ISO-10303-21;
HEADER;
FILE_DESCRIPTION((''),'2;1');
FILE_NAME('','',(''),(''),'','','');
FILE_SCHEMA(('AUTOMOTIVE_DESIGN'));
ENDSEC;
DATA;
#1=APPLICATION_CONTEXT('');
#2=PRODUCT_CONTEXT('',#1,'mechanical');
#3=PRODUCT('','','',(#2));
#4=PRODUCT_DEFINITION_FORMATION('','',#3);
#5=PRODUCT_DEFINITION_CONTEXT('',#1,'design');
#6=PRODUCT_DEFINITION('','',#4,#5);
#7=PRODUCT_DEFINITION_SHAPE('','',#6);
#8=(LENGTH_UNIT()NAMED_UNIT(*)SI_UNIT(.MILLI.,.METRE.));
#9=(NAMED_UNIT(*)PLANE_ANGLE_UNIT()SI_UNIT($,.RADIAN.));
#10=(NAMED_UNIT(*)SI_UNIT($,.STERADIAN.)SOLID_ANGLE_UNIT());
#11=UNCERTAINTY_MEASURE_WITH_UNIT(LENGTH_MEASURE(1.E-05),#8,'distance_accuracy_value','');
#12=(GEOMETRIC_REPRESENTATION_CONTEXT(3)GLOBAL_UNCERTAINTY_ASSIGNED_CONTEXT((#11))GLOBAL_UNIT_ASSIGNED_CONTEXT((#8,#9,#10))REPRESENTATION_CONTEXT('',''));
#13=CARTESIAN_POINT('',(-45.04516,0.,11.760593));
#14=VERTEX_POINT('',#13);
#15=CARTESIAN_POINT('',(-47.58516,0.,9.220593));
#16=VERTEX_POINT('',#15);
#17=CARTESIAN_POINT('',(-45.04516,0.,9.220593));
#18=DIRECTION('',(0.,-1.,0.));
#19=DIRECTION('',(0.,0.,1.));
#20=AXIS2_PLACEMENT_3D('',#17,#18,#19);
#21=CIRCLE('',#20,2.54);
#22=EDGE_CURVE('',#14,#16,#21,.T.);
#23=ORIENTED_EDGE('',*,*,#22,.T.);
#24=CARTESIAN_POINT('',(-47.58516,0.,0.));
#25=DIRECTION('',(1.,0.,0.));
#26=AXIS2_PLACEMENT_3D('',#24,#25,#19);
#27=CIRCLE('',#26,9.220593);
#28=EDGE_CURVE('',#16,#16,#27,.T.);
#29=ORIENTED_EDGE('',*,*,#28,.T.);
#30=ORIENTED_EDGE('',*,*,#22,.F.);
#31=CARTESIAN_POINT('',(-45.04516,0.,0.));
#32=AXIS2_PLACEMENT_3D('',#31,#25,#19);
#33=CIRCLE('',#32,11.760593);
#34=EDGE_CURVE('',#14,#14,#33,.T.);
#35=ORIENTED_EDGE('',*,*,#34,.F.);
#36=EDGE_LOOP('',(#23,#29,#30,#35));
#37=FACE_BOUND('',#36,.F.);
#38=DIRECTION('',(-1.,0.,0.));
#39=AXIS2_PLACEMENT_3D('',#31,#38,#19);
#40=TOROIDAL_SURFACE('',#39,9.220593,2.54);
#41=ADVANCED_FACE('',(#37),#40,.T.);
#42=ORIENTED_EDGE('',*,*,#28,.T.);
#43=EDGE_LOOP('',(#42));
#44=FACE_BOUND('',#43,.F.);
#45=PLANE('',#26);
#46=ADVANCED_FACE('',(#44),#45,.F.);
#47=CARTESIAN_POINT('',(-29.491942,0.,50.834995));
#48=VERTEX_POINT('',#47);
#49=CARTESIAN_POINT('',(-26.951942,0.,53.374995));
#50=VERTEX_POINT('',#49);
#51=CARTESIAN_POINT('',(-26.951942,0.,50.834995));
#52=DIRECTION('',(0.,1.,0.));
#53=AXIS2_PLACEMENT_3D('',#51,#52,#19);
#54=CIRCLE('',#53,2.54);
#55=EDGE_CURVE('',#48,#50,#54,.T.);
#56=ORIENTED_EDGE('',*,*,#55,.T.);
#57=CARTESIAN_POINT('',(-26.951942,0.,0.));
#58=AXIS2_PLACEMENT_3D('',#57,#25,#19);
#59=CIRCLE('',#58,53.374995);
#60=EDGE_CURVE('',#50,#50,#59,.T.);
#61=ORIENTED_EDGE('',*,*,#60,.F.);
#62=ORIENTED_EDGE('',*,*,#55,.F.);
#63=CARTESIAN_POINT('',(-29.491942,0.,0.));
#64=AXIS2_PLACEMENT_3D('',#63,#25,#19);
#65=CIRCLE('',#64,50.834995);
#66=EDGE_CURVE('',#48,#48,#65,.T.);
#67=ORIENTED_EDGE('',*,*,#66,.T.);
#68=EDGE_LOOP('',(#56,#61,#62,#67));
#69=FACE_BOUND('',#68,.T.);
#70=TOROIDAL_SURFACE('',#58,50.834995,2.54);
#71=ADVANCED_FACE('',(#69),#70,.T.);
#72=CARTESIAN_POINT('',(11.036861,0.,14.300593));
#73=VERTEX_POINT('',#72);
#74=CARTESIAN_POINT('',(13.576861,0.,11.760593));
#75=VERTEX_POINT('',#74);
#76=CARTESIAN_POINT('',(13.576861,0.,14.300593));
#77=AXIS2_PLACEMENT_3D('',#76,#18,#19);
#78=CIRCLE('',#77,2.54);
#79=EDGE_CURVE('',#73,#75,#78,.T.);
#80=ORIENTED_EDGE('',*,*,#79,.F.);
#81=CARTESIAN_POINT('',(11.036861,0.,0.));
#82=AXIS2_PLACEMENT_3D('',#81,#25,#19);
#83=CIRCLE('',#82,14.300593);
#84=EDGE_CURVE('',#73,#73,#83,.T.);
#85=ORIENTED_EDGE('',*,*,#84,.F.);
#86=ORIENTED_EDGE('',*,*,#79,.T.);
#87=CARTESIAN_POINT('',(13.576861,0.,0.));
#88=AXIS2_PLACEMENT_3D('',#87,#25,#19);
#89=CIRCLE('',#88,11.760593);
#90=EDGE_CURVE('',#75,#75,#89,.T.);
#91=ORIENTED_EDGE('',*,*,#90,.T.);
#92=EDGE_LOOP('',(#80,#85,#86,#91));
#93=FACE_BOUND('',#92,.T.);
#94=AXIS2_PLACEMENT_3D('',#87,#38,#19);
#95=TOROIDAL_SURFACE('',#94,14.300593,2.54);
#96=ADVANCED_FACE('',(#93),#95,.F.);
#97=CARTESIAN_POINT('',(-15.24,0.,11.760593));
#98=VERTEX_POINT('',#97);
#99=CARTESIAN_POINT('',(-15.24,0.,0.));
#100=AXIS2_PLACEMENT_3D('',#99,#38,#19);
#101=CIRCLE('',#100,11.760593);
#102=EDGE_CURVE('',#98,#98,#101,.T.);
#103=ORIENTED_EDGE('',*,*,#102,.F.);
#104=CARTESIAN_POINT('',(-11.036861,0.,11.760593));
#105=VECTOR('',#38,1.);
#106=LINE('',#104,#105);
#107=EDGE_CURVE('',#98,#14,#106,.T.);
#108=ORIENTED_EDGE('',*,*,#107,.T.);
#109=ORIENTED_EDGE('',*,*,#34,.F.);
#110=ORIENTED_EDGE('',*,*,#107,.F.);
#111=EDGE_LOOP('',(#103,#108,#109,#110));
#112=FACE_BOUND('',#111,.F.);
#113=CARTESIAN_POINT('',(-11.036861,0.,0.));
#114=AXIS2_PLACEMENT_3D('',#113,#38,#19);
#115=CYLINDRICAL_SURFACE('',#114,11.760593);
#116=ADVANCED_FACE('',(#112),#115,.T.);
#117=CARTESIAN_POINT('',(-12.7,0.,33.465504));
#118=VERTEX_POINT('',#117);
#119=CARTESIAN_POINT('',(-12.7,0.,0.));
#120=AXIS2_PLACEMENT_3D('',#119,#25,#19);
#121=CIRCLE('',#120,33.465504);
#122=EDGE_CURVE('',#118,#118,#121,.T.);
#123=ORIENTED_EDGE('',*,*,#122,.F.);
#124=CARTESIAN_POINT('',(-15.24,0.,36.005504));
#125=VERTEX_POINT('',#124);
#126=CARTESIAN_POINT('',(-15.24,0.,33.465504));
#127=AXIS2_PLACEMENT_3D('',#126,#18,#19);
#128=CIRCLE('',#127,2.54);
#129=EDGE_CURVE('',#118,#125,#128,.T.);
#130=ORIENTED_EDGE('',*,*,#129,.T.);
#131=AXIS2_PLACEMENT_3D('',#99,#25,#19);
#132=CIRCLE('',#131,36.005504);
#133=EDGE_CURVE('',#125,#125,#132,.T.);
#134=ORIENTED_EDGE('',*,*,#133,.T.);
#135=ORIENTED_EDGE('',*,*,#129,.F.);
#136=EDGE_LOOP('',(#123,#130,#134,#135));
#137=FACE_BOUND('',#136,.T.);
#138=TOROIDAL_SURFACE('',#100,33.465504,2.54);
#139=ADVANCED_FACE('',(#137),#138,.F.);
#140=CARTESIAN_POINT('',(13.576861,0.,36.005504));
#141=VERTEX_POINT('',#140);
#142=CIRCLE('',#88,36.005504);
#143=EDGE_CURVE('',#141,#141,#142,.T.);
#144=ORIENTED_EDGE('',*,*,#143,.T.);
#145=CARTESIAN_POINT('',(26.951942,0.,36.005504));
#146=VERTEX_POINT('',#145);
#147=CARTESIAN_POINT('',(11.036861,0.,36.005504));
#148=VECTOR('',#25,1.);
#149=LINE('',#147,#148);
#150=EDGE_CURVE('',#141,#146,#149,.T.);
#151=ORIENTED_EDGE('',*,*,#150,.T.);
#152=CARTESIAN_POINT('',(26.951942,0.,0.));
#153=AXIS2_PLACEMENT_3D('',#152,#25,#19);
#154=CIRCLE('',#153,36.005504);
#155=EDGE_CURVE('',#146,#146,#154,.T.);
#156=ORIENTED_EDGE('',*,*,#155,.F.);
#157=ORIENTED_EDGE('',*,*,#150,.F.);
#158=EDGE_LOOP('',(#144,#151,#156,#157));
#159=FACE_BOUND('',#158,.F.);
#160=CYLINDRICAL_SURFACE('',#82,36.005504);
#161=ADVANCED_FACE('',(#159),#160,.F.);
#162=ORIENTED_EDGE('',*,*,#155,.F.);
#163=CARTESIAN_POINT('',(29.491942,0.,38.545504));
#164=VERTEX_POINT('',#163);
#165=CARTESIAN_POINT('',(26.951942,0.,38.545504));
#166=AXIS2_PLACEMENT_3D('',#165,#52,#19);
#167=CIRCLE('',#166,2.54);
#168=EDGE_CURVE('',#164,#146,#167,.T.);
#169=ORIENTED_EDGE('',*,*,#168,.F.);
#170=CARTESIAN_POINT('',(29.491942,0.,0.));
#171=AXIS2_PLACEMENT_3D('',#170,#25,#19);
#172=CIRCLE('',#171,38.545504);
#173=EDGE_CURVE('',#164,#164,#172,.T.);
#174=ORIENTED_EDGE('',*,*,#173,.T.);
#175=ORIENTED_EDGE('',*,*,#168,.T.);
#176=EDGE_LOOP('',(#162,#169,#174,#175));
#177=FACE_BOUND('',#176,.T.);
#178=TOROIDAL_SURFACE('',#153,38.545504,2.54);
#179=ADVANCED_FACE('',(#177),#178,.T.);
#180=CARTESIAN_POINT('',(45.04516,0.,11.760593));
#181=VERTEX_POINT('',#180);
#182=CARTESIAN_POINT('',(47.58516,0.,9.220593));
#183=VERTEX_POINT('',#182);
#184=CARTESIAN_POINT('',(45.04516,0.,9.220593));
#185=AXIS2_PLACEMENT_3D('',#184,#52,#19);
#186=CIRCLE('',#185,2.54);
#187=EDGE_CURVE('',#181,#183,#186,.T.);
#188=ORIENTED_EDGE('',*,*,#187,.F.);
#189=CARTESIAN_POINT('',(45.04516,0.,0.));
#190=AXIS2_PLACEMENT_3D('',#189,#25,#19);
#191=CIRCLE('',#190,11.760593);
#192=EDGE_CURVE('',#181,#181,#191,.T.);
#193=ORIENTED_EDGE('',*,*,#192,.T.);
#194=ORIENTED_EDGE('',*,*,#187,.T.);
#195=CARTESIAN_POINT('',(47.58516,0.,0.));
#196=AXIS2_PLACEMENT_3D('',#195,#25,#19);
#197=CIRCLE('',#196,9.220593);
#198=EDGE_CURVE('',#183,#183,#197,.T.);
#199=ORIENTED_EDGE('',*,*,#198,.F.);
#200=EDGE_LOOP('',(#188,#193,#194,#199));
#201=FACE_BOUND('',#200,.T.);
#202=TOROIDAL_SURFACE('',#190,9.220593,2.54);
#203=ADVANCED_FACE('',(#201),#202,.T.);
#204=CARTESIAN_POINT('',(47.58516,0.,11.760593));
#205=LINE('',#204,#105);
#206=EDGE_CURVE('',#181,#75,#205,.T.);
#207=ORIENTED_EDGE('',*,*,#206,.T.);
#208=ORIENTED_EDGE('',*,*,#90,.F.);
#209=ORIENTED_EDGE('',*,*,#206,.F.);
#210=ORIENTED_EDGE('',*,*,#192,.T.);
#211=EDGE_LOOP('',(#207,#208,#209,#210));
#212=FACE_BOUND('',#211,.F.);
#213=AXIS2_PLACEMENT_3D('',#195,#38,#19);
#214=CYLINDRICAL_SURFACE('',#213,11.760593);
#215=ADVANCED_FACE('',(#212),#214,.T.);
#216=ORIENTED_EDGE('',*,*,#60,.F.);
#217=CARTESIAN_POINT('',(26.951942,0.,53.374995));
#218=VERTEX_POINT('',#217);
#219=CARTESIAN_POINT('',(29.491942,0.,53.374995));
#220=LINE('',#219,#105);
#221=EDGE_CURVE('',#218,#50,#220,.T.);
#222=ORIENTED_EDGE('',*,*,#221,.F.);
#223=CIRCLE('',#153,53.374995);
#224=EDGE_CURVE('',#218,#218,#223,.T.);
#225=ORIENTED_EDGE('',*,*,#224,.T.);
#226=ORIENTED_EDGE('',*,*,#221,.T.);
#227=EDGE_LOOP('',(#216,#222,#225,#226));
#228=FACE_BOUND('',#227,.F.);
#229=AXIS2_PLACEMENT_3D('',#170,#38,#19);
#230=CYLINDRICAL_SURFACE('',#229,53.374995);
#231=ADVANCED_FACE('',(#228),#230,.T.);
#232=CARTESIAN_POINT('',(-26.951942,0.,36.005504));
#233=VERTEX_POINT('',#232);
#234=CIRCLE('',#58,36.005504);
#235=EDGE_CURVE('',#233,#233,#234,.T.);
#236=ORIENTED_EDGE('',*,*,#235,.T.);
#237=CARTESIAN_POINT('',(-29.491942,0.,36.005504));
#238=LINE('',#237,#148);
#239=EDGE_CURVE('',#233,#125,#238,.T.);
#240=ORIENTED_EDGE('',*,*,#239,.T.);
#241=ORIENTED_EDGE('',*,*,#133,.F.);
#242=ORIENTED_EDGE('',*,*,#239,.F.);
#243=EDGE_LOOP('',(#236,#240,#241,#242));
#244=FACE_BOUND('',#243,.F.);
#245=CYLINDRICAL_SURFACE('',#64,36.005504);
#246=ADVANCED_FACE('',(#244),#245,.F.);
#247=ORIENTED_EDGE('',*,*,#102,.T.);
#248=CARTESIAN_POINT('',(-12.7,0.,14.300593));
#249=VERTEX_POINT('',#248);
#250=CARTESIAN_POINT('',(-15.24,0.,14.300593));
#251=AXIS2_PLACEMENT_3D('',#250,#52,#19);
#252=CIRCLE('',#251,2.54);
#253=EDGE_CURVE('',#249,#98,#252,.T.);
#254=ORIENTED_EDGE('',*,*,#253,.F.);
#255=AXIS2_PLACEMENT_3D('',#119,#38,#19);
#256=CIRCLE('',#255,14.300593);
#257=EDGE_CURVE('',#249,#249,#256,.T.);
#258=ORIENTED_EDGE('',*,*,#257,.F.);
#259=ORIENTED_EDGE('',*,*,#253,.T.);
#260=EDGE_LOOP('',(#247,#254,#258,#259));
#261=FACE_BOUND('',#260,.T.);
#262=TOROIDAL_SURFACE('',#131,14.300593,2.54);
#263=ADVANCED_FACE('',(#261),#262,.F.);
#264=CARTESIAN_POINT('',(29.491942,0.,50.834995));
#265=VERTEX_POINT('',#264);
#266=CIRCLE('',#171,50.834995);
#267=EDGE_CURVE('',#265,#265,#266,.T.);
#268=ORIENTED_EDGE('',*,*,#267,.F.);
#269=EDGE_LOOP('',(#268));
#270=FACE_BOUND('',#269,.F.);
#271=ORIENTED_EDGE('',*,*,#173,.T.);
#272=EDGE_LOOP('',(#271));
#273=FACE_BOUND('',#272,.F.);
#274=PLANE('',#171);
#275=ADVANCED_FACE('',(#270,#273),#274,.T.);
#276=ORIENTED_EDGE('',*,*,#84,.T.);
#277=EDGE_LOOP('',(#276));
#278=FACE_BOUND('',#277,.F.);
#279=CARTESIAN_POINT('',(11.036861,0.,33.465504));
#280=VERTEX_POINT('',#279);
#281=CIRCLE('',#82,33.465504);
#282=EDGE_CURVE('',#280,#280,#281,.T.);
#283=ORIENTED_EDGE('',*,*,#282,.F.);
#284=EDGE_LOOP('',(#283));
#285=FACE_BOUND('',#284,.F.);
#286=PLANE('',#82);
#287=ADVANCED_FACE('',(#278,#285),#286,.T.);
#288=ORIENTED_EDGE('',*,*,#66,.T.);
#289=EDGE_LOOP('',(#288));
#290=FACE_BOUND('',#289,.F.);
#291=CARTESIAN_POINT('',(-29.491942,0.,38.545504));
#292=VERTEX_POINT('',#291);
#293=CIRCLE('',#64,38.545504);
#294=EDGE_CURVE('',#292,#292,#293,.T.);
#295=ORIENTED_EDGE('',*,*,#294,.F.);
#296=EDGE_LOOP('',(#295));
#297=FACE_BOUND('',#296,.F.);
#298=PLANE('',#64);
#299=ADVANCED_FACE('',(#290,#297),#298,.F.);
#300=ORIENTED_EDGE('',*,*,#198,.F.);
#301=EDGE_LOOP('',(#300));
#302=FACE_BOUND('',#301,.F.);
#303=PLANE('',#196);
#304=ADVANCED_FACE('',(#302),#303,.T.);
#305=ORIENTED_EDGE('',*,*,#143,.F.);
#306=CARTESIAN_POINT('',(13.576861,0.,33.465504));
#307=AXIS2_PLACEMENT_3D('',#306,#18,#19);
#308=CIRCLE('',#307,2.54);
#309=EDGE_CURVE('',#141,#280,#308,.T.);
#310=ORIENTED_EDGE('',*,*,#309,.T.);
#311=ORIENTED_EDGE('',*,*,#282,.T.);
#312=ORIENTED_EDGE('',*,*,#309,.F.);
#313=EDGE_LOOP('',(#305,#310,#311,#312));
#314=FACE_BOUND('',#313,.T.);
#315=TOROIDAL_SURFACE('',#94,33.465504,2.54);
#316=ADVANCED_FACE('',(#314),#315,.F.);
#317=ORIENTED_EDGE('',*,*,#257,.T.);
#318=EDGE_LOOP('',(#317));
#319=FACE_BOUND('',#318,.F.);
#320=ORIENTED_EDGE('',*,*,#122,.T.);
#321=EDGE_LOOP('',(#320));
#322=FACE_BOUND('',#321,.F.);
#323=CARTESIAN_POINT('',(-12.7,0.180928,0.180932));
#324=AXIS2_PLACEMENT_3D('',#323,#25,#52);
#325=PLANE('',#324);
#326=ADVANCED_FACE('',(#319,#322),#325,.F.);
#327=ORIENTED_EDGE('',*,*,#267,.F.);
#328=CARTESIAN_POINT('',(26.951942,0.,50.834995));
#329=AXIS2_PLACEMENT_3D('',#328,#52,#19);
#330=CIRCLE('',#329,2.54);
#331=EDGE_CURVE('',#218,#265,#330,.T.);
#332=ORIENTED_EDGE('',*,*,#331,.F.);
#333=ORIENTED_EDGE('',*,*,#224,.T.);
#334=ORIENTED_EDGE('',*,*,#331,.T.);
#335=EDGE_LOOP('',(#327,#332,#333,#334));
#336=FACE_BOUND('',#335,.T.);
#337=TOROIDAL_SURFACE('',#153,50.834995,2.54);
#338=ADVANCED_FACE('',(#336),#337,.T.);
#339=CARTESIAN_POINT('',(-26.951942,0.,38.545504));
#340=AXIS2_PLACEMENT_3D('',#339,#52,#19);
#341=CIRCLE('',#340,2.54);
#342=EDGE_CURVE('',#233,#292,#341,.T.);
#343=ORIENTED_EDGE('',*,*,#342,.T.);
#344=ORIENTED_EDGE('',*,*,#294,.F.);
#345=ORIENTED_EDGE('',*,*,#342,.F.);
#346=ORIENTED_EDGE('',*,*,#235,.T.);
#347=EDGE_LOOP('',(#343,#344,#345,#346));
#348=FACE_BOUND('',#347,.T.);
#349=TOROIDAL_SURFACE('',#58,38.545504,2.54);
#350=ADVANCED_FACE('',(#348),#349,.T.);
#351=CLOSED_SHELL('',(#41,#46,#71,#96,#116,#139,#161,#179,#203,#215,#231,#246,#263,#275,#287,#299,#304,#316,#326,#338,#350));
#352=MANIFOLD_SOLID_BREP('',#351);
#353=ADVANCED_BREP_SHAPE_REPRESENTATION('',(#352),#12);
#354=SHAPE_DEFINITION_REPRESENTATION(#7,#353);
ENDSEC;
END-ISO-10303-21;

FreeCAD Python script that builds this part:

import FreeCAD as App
import Part
import Sketcher
from FreeCAD import Vector
Q = App.Units.Quantity


def edges_at(feature, points):
    """Names of the edges that pass closest to the given points."""
    edges = feature.Shape.Edges
    near = lambda p: min(range(len(edges)), key=lambda i: edges[i].distToShape(Part.Vertex(*p))[0])
    return sorted({f"Edge{near(p) + 1}" for p in points})


def add_polygon(sketch, points):
    """Adds a closed chain of lines whose ends are joined by coincident constraints."""
    first, n = sketch.GeometryCount, len(points)
    for a, b in zip(points, points[1:] + points[:1]):
        sketch.addGeometry(Part.LineSegment(App.Vector(*a, 0), App.Vector(*b, 0)), False)
    for i in range(n):
        sketch.addConstraint(Sketcher.Constraint("Coincident", first + i, 2, first + (i + 1) % n, 1))

doc = App.newDocument("Part")
body = doc.addObject("PartDesign::Body", "Body")

# Sketch on XZ plane
sketch1 = body.newObject("Sketcher::SketchObject", "Sketch")
sketch1.AttachmentSupport = (doc.getObject("XZ_Plane"), [""])
sketch1.MapMode = "FlatFace"
add_polygon(sketch1, [(29, 53), (-29, 53), (-29, 36), (-11, 36), (-11, 12), (-48, 12), (-48, 0), (48, 0), (48, 12), (11, 12), (11, 36), (29, 36)])  # lines 0-11
sketch1.addConstraint([
    Sketcher.Constraint("Horizontal", 0),
    Sketcher.Constraint("Vertical", 1),
    Sketcher.Constraint("Horizontal", 2),
    Sketcher.Constraint("Vertical", 3),
    Sketcher.Constraint("Horizontal", 4),
    Sketcher.Constraint("Vertical", 5),
    Sketcher.Constraint("Horizontal", 6),
    Sketcher.Constraint("Vertical", 7),
    Sketcher.Constraint("Horizontal", 8),
    Sketcher.Constraint("Vertical", 9),
    Sketcher.Constraint("Horizontal", 10),
    Sketcher.Constraint("Vertical", 11),
    Sketcher.Constraint("Symmetric", 5, 2, 6, 2, -1, 1),
    Sketcher.Constraint("Symmetric", 3, 2, 8, 2, -2),
    Sketcher.Constraint("Symmetric", 1, 2, 10, 2, -2),
    Sketcher.Constraint("DistanceX", 0, 2, 0, 1, Q("2.3222002 in")),
    Sketcher.Constraint("DistanceX", 4, 2, 4, 1, Q("36.548299 mm")),
    Sketcher.Constraint("DistanceX", 2, 1, 2, 2, Q("18.455081 mm")),
    Sketcher.Constraint("DistanceY", 1, 2, 1, 1, Q("17.369491 mm")),
    Sketcher.Constraint("DistanceY", 3, 2, 3, 1, Q("24.244911 mm")),
    Sketcher.Constraint("DistanceY", 5, 2, 5, 1, Q("11.760593 mm")),
])
revolution = body.newObject("PartDesign::Revolution", "Revolution")
revolution.Profile = sketch1
revolution.ReferenceAxis = (sketch1, ["H_Axis"])
revolution.Angle = 360

# Sketch on YZ plane
sketch2 = body.newObject("Sketcher::SketchObject", "Sketch001")
sketch2.AttachmentSupport = (doc.getObject("YZ_Plane"), [""])
sketch2.MapMode = "FlatFace"
sketch2.addGeometry(Part.Circle(Vector(0, 0, 0), Vector(0, 0, 1), 44), False)
sketch2.addConstraint([
    Sketcher.Constraint("Diameter", 0, Q("87.857804 mm")),
    Sketcher.Constraint("DistanceX", -1, 1, 0, 3, Q("0.180928 mm")),
    Sketcher.Constraint("DistanceY", -1, 1, 0, 3, Q("0.180932 mm")),
])
pad1 = body.newObject("PartDesign::Pad", "Pad")
pad1.Profile = sketch2
pad1.Length = Q("0.5 in")
pad1.Reversed = True
doc.recompute()

fillet = body.newObject("PartDesign::Fillet", "Fillet")
fillet.Base = (pad1, edges_at(pad1, [
    (-29.492, 0, -53.375),
    (-29.492, 0, -36.006),
    (-47.585, 0, -11.761),
    (29.492, 0, -53.375),
    (29.492, 0, -36.006),
    (11.037, 0, -11.761),
    (11.037, 0, -36.006),
    (-12.7, 0, -11.761),
    (-12.7, 0, -36.006),
    (47.585, 0, -11.761),
]))
fillet.Radius = Q("0.1 in")

doc.recompute()
